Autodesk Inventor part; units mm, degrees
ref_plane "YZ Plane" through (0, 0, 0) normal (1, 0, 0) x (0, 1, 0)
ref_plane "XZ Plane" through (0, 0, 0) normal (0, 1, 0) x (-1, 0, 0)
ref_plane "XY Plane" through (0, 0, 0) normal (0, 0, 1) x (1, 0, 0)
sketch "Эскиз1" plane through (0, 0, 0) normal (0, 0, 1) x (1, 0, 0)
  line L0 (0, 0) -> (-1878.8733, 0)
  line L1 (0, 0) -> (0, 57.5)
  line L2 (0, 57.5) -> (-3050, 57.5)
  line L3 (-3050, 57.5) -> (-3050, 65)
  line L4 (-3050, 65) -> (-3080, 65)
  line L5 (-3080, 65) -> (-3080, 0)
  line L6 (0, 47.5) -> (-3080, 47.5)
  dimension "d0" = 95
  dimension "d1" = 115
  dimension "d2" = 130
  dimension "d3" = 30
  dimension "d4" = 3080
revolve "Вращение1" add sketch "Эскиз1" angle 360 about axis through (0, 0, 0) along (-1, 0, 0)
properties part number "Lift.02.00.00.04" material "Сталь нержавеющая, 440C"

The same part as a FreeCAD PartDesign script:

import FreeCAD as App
import Part
import Sketcher


def add_polygon(sketch, points):
    """Adds a closed chain of lines whose ends are joined by coincident constraints."""
    first, n = sketch.GeometryCount, len(points)
    for a, b in zip(points, points[1:] + points[:1]):
        sketch.addGeometry(Part.LineSegment(App.Vector(*a, 0), App.Vector(*b, 0)), False)
    for i in range(n):
        sketch.addConstraint(Sketcher.Constraint("Coincident", first + i, 2, first + (i + 1) % n, 1))

doc = App.newDocument("Part")
body = doc.addObject("PartDesign::Body", "Body")

# Sketch on XY plane
sketch1 = body.newObject("Sketcher::SketchObject", "Sketch")
sketch1.AttachmentSupport = (doc.getObject("XY_Plane"), [""])
sketch1.MapMode = "FlatFace"
add_polygon(sketch1, [(-3080, 47.5), (0, 47.5), (0, 57.5), (-3050, 57.5), (-3050, 65), (-3080, 65)])  # lines 0-5
sketch1.addConstraint([
    Sketcher.Constraint("Horizontal", 0),
    Sketcher.Constraint("Vertical", 1),
    Sketcher.Constraint("Horizontal", 2),
    Sketcher.Constraint("Vertical", 3),
    Sketcher.Constraint("Horizontal", 4),
    Sketcher.Constraint("Vertical", 5),
    Sketcher.Constraint("PointOnObject", 0, 2, -2),
    Sketcher.Constraint("DistanceX", 0, 1, 0, 2, 3080.0),
    Sketcher.Constraint("DistanceX", 4, 2, 4, 1, 30.0),
    Sketcher.Constraint("DistanceY", 1, 1, 1, 2, 10.0),
    Sketcher.Constraint("DistanceY", 3, 1, 3, 2, 7.5),
    Sketcher.Constraint("DistanceY", -1, 1, 3, 2, 65.0),
])
revolution = body.newObject("PartDesign::Revolution", "Revolution")
revolution.Profile = sketch1
revolution.ReferenceAxis = (sketch1, ["H_Axis"])
revolution.Angle = 360

doc.recompute()
